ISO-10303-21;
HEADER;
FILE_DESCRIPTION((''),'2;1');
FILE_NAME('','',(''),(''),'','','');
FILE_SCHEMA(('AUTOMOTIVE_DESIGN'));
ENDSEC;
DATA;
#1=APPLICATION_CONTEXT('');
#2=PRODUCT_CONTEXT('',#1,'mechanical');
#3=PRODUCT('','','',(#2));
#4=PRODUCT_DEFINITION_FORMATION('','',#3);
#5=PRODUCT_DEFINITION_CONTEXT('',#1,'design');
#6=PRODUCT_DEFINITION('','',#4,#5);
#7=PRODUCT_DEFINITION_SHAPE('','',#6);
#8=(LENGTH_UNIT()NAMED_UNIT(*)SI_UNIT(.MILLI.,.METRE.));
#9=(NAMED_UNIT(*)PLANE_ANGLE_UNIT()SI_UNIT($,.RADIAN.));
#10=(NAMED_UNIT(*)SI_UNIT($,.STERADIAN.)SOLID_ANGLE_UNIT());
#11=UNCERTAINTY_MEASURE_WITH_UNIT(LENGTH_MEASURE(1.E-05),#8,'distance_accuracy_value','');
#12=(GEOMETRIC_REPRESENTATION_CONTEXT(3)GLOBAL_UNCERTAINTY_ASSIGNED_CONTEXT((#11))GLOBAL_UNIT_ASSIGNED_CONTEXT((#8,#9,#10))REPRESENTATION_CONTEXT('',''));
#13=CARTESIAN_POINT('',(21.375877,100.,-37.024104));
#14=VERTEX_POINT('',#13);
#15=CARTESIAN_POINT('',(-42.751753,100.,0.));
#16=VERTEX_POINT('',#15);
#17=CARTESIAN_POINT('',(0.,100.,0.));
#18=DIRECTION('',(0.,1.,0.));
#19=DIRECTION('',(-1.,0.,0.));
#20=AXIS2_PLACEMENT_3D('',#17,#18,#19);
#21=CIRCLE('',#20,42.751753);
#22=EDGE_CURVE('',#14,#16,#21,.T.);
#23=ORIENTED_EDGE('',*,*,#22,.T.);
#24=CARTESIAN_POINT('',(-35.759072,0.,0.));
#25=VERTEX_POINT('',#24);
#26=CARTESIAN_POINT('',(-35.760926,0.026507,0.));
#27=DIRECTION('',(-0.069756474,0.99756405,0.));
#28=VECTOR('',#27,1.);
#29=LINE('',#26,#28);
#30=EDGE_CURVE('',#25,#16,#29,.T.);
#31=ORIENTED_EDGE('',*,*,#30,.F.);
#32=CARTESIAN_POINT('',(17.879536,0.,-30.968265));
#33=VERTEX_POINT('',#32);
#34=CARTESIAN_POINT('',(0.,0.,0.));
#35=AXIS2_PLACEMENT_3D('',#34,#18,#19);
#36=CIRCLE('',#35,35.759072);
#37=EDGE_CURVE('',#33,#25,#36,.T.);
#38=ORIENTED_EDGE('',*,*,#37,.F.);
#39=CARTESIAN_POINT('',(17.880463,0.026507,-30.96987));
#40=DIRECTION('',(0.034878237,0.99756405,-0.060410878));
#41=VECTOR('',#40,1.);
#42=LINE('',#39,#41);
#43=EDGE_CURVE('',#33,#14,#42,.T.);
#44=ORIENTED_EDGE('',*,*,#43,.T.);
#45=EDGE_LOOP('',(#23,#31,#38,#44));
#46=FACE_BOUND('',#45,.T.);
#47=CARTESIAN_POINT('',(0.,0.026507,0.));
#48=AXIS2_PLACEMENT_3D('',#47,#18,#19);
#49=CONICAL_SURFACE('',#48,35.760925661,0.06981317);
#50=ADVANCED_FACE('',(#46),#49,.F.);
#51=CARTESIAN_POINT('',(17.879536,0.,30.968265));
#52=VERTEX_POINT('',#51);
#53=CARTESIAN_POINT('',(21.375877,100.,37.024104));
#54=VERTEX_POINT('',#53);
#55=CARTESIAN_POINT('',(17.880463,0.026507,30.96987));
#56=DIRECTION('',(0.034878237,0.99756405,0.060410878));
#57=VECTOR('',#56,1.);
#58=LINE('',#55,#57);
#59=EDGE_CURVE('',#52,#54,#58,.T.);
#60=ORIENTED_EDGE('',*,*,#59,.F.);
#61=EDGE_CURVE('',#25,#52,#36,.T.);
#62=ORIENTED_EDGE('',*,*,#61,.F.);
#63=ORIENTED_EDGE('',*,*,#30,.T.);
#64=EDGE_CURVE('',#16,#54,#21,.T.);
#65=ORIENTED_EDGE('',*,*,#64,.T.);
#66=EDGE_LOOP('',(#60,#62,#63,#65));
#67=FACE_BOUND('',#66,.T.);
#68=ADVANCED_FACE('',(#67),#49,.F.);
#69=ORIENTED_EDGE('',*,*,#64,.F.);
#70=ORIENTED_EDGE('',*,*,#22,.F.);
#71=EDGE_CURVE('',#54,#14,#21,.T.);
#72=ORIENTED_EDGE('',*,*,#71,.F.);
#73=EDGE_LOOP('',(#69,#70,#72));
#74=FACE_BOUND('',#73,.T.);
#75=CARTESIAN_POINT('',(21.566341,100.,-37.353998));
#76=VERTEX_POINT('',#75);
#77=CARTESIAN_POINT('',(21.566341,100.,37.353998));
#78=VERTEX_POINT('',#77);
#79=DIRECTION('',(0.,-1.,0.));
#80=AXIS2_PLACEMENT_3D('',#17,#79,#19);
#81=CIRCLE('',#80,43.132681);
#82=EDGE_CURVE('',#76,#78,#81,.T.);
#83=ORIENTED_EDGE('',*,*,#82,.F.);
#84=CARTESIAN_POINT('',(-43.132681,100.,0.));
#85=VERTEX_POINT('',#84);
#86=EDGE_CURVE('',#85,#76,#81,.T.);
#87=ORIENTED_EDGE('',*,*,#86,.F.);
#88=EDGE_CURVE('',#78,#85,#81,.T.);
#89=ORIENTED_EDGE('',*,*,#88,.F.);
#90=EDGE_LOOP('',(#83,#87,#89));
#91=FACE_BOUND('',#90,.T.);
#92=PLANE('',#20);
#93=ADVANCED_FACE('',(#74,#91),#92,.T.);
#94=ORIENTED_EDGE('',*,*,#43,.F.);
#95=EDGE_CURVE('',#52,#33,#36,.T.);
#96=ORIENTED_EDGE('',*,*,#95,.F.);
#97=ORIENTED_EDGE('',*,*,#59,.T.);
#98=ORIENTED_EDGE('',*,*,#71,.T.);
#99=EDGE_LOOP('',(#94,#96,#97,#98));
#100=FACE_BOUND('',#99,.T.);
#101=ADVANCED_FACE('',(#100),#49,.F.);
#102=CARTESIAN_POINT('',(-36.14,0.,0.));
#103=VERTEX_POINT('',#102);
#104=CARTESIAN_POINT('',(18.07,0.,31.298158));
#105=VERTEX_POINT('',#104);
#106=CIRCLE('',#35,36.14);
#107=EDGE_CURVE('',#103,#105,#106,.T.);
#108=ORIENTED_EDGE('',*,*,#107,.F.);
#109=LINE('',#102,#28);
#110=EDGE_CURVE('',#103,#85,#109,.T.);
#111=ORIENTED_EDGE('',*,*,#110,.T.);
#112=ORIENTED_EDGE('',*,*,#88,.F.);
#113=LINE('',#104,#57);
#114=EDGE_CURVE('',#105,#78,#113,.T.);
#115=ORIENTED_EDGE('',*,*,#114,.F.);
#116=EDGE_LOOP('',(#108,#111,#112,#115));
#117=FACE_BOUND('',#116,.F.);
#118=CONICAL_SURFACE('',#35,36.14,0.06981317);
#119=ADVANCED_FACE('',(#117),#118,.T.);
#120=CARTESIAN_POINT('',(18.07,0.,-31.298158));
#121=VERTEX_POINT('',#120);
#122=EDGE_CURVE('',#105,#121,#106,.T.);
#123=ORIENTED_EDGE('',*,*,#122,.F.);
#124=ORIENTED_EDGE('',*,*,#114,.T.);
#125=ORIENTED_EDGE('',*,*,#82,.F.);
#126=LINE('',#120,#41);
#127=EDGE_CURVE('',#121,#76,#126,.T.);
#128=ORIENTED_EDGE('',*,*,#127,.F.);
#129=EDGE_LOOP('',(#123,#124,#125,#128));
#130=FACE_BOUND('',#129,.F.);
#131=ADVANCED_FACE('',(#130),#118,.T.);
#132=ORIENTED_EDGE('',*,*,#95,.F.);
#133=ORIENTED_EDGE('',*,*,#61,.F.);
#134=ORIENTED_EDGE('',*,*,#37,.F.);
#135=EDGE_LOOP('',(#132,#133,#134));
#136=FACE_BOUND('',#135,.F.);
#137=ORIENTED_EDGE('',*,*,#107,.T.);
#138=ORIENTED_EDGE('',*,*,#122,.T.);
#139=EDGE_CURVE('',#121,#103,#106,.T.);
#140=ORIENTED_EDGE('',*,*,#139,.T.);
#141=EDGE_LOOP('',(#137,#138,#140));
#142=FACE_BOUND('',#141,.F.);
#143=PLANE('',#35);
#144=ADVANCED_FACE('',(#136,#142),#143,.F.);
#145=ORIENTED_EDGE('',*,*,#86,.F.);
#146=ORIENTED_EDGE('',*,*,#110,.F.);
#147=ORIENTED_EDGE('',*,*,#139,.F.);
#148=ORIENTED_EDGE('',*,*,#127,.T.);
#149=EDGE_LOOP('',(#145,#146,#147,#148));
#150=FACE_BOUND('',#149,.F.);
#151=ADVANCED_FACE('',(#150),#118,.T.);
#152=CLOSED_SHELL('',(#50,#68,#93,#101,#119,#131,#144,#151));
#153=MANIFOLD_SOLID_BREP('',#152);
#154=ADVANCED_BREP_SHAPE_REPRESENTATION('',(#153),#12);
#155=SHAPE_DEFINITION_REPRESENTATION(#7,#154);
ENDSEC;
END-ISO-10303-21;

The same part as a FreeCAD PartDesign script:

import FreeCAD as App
import Part
import Sketcher
from FreeCAD import Vector
Q = App.Units.Quantity


def faces_at(feature, points):
    """Names of the faces that lie closest to the given points."""
    faces = feature.Shape.Faces
    near = lambda p: min(range(len(faces)), key=lambda i: faces[i].distToShape(Part.Vertex(*p))[0])
    return sorted({f"Face{near(p) + 1}" for p in points})

doc = App.newDocument("Part")
body = doc.addObject("PartDesign::Body", "Body")

# Sketch on XZ plane
sketch1 = body.newObject("Sketcher::SketchObject", "Sketch")
sketch1.AttachmentSupport = (doc.getObject("XZ_Plane"), [""])
sketch1.MapMode = "FlatFace"
sketch1.addGeometry(Part.Circle(Vector(0, 0, 0), Vector(0, 0, 1), 36), False)
sketch1.addConstraint([
    Sketcher.Constraint("Coincident", 0, 3, -1, 1),
    Sketcher.Constraint("Diameter", 0, 72.28),
])
pad1 = body.newObject("PartDesign::Pad", "Pad")
pad1.Profile = sketch1
pad1.Length = Q("3.9370079 in")
pad1.Reversed = True
pad1.TaperAngle = 4
doc.recompute()

thickness = body.newObject("PartDesign::Thickness", "Thickness")
thickness.Base = (pad1, faces_at(pad1, [(-7.976, 0, 7.115), (-8.118, 100, 9.593)]))
thickness.Value = 0.38
thickness.Reversed = True
thickness.Join = "Intersection"

doc.recompute()
